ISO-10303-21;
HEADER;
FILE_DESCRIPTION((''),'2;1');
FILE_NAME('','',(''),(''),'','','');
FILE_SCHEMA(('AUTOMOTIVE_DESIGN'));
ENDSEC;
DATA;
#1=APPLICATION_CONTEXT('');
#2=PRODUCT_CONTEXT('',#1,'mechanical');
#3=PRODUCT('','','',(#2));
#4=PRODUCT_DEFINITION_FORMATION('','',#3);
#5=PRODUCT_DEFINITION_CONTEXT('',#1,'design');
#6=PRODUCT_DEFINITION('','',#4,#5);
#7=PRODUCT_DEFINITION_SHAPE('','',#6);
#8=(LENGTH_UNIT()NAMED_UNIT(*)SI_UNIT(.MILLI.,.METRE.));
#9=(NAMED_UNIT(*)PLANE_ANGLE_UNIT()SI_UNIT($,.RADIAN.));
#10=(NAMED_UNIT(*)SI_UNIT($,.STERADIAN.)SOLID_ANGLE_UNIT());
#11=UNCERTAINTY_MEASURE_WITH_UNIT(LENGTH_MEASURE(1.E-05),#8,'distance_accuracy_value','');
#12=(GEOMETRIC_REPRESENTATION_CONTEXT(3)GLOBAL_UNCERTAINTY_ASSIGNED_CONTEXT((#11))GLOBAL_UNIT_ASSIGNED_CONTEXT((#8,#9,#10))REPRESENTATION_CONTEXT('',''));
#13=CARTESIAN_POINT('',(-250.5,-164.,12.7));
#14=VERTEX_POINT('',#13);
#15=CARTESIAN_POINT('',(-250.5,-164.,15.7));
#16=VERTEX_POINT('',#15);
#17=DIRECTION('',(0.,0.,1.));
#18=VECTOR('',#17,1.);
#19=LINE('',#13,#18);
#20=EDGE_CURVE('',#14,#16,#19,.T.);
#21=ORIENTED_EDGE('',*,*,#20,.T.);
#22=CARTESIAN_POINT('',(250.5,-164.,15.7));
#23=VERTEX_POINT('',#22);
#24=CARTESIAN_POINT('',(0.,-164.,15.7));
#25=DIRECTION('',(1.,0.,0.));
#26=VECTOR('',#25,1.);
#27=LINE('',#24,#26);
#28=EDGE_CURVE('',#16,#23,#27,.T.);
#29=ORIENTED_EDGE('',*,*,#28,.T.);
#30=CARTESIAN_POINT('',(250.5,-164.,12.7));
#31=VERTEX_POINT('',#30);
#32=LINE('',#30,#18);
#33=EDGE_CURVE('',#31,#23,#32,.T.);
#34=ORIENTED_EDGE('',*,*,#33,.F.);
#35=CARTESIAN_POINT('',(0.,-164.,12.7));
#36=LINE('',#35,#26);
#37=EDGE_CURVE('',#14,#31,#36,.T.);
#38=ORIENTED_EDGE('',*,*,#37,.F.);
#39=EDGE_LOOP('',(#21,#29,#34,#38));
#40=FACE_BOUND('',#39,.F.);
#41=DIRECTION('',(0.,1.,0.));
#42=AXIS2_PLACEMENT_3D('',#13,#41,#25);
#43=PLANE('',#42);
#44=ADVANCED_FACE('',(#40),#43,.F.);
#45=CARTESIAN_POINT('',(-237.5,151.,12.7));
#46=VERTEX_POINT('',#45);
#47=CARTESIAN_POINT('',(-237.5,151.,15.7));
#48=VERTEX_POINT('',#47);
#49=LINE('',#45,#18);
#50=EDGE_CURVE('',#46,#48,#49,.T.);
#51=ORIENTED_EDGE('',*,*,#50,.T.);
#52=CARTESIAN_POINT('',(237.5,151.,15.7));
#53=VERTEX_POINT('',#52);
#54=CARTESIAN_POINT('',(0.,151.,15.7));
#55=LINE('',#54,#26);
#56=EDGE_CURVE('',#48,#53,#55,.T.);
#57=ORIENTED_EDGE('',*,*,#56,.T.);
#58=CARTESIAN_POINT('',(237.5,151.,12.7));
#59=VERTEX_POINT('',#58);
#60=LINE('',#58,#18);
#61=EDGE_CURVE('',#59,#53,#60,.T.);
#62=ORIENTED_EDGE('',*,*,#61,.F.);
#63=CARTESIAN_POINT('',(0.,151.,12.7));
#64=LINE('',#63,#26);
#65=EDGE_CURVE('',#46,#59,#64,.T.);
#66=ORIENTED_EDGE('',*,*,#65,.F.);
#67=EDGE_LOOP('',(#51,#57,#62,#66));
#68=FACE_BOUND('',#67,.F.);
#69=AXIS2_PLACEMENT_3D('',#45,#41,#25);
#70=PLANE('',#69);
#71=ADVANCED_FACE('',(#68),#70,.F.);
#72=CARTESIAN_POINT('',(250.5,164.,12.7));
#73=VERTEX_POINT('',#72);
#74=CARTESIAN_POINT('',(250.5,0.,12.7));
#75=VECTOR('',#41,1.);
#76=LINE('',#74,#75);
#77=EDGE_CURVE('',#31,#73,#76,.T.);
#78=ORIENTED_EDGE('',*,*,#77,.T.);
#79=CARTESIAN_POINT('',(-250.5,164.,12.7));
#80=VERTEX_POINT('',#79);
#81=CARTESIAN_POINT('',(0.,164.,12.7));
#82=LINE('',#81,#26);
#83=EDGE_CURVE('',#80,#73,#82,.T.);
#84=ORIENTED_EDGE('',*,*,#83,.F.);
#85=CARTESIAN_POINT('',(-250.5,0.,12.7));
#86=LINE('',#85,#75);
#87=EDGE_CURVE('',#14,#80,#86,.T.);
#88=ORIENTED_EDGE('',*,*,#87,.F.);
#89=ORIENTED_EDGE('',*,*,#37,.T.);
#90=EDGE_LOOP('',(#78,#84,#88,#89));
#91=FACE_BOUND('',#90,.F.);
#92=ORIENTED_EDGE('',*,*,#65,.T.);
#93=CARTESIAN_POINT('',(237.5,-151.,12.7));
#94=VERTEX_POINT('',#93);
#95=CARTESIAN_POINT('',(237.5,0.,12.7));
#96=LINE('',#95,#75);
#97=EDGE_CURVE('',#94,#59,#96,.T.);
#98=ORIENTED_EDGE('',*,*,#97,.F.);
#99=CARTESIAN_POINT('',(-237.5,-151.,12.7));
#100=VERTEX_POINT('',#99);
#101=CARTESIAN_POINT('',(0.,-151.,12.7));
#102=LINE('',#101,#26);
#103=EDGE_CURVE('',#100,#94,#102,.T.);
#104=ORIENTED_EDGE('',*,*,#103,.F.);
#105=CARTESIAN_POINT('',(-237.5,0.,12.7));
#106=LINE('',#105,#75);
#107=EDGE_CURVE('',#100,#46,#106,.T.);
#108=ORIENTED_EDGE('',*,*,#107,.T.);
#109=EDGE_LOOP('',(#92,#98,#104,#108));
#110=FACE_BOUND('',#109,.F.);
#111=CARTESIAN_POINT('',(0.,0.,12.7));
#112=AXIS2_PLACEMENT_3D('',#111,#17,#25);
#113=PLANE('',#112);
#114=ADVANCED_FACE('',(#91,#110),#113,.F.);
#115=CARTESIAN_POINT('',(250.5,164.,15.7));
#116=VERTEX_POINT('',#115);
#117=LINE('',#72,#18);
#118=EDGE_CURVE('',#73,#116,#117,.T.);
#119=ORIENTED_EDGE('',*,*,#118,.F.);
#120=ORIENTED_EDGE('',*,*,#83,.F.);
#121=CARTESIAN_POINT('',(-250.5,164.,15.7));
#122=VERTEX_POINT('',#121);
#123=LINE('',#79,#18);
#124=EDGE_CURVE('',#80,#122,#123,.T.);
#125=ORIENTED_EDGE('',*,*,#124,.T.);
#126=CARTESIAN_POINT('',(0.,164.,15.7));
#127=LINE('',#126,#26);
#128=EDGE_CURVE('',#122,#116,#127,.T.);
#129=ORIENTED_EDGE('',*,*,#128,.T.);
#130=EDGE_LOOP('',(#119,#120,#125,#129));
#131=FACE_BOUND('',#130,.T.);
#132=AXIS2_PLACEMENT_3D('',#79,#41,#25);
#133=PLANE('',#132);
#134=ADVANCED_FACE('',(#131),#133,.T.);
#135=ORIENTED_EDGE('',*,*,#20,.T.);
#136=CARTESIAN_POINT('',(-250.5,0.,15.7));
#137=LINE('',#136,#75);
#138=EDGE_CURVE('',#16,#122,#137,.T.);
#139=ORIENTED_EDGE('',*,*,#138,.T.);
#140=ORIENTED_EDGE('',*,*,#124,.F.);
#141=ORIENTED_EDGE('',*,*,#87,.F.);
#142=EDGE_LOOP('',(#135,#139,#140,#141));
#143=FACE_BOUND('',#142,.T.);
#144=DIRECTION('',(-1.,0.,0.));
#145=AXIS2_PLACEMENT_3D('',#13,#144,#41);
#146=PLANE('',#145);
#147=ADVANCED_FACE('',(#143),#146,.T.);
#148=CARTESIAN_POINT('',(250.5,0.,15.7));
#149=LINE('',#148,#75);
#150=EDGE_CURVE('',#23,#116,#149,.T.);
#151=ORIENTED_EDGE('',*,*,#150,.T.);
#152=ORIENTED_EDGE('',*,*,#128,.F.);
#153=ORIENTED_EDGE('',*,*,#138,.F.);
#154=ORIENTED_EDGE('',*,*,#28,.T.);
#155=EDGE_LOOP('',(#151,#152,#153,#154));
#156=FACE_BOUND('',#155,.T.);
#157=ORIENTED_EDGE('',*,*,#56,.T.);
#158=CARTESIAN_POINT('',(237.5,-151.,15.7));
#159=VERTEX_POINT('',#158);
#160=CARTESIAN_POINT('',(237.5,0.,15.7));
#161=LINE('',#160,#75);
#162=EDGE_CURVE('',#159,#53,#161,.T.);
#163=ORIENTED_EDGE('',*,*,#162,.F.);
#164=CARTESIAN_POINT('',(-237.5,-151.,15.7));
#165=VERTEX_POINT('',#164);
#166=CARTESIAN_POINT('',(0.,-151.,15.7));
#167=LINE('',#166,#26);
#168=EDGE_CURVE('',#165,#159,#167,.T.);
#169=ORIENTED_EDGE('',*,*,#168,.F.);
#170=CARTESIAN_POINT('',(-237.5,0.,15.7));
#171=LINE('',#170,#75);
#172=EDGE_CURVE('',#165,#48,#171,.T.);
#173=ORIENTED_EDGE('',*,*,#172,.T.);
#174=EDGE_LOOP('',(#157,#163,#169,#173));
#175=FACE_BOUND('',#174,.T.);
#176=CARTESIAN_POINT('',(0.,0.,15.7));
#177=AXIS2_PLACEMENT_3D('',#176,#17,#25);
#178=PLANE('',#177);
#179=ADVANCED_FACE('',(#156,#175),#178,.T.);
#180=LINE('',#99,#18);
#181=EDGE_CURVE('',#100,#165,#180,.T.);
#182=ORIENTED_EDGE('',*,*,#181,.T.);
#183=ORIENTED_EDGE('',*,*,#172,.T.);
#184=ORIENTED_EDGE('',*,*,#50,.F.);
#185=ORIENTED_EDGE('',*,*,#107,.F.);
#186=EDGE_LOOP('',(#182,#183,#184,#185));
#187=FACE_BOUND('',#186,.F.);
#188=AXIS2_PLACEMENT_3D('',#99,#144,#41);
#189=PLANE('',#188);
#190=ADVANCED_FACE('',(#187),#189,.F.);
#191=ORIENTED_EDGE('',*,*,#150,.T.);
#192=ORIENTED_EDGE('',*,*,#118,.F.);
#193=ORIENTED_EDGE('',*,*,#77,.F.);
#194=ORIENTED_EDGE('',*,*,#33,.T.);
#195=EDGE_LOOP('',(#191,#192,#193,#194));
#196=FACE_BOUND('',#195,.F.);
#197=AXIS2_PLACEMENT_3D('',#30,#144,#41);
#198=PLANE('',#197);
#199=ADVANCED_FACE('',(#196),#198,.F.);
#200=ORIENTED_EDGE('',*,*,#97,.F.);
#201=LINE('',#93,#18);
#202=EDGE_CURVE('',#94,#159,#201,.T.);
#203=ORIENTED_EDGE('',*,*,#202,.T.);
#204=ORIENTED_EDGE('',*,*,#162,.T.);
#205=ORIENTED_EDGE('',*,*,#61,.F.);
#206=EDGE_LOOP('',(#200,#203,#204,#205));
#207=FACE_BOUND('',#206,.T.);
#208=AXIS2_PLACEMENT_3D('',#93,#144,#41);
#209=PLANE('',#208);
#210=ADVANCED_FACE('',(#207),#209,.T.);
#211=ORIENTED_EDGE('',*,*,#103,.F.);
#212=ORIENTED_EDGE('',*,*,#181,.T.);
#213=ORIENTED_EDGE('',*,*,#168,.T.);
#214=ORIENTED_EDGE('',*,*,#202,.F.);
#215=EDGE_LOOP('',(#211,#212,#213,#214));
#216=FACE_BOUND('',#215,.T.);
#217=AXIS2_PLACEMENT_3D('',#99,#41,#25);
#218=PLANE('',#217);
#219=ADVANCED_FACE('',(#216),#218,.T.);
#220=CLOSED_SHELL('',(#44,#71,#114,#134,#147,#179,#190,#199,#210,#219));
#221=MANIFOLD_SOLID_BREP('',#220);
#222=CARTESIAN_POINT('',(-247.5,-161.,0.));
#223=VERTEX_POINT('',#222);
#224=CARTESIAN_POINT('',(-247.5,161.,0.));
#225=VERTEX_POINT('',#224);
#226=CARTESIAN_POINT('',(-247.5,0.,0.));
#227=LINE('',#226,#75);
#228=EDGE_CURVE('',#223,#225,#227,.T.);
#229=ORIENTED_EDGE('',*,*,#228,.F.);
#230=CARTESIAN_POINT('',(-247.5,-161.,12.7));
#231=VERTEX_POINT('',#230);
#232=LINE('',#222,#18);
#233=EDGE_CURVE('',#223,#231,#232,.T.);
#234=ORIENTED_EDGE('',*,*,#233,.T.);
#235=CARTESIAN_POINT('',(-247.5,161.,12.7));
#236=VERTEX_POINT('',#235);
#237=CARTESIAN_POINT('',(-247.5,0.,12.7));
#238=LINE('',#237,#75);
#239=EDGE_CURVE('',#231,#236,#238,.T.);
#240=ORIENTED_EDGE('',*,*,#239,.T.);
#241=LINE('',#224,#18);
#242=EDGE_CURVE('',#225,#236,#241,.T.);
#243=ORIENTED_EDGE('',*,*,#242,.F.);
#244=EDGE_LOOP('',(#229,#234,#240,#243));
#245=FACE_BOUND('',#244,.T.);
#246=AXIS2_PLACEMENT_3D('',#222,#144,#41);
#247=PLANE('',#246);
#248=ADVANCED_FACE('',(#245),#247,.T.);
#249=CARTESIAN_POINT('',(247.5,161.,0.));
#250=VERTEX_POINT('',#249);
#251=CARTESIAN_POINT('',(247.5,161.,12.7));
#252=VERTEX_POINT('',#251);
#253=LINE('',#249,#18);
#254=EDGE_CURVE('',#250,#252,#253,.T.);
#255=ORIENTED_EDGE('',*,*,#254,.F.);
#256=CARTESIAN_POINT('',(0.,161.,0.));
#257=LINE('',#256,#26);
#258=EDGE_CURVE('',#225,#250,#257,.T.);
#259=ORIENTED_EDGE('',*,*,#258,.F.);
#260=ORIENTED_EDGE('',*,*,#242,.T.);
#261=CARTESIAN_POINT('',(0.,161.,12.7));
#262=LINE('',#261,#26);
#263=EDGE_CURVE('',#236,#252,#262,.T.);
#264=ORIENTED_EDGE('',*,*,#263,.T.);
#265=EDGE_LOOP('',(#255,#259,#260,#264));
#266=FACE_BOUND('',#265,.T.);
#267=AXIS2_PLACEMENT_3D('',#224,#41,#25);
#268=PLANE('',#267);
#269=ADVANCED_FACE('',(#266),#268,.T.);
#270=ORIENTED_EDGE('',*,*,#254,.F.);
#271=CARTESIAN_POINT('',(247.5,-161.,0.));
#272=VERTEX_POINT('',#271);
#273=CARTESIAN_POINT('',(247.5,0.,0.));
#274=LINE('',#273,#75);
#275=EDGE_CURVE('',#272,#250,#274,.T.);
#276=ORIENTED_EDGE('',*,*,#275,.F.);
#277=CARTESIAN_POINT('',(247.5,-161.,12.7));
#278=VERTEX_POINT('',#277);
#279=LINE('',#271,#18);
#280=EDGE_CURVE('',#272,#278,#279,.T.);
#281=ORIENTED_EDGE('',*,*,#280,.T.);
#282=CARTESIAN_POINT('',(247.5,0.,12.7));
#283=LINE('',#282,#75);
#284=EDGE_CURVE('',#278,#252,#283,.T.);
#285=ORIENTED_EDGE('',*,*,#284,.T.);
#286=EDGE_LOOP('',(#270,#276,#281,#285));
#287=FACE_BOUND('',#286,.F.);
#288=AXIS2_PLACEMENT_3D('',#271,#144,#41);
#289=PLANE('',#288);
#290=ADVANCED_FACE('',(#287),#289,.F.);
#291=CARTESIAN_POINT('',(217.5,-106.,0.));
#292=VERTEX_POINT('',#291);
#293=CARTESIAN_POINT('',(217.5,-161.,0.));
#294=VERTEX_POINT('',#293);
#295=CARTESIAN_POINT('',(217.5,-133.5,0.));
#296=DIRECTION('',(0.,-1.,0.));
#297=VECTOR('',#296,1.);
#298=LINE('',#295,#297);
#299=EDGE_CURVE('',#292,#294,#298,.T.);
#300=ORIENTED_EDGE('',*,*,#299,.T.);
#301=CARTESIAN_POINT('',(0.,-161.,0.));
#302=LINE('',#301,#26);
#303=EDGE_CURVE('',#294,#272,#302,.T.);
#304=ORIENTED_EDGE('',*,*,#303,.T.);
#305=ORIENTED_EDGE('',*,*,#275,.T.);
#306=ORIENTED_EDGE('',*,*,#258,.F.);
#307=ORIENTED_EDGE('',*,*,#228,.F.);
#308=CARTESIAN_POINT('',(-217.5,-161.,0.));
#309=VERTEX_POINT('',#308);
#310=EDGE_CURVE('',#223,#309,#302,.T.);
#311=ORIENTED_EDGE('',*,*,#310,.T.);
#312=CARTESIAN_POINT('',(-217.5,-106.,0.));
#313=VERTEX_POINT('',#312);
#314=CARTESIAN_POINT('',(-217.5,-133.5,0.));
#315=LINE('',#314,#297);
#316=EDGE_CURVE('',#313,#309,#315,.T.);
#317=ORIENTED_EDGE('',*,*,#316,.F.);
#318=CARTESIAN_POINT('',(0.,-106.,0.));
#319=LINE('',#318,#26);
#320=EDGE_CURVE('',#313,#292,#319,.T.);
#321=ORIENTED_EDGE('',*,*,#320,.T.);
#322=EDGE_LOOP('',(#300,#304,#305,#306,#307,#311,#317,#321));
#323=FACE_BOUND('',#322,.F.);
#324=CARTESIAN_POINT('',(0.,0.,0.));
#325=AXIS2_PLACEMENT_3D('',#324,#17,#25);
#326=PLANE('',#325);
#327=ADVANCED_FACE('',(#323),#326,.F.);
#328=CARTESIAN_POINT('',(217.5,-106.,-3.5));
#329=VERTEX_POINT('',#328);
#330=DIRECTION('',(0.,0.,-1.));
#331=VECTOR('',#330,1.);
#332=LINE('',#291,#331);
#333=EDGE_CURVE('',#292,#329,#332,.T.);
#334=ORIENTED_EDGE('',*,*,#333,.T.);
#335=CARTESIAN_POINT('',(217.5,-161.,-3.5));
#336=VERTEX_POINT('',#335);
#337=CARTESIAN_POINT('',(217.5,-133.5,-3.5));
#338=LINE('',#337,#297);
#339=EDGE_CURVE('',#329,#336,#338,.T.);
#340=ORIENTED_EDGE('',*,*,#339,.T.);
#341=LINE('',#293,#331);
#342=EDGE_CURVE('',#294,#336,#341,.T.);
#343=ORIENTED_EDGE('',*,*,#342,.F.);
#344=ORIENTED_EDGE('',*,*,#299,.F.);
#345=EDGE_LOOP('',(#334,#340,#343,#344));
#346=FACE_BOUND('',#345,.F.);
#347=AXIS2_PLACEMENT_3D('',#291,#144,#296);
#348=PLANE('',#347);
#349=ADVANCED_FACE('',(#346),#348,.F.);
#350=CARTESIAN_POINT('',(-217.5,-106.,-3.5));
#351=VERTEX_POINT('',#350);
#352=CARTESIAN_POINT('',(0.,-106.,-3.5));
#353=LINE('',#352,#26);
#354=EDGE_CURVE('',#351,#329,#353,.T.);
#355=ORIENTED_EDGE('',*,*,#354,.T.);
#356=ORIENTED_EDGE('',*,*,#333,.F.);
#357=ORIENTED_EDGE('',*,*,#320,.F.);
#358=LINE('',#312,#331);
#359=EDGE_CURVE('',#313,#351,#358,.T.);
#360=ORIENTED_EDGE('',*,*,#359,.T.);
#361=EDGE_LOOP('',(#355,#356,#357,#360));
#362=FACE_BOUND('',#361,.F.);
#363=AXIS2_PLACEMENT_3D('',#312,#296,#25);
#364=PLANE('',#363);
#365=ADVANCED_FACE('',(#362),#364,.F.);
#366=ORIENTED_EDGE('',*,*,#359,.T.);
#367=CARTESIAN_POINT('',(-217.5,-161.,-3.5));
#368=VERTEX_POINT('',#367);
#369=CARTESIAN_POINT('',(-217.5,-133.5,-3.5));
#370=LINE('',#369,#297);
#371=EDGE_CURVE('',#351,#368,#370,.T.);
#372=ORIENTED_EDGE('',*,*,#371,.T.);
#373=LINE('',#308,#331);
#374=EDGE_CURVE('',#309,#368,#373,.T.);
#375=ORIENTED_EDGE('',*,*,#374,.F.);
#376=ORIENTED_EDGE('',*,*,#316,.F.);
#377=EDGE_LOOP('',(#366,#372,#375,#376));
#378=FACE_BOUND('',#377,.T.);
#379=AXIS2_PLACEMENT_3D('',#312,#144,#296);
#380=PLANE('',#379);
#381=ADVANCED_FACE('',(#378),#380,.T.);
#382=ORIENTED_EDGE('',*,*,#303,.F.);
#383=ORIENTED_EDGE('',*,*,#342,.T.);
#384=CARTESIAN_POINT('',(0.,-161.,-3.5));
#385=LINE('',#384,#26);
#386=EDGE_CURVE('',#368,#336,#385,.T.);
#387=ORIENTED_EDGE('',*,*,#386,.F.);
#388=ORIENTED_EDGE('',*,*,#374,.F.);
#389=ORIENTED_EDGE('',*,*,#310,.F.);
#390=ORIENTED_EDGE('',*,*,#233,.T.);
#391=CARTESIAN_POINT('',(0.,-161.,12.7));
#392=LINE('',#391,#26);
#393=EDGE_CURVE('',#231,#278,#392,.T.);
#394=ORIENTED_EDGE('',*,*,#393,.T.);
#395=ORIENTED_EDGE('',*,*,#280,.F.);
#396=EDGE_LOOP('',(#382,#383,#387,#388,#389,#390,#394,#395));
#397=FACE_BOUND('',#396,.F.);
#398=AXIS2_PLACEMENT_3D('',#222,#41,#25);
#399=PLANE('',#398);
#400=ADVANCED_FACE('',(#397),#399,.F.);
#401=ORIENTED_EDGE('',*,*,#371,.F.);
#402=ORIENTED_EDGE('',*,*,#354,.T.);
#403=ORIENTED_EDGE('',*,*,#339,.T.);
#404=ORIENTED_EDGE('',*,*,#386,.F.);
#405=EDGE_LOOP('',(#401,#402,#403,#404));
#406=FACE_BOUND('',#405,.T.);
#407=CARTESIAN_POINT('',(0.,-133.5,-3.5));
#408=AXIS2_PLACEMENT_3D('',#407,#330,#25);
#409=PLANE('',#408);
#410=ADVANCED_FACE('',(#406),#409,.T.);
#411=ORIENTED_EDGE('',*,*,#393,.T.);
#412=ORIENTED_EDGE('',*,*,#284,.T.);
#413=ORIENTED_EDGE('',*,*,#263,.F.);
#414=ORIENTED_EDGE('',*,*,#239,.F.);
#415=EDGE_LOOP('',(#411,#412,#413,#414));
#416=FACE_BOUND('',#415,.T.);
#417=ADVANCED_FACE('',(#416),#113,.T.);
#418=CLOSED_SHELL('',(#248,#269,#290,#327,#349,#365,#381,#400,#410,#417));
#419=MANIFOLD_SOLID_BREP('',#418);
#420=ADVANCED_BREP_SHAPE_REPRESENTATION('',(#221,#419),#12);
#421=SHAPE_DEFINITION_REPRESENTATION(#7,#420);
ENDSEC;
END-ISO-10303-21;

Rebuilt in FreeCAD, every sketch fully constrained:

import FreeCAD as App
import Part
import Sketcher
from FreeCAD import Vector
Q = App.Units.Quantity


def add_polygon(sketch, points):
    """Adds a closed chain of lines whose ends are joined by coincident constraints."""
    first, n = sketch.GeometryCount, len(points)
    for a, b in zip(points, points[1:] + points[:1]):
        sketch.addGeometry(Part.LineSegment(App.Vector(*a, 0), App.Vector(*b, 0)), False)
    for i in range(n):
        sketch.addConstraint(Sketcher.Constraint("Coincident", first + i, 2, first + (i + 1) % n, 1))

doc = App.newDocument("Part")
body = doc.addObject("PartDesign::Body", "Body")

# Sketch on XY plane
sketch1 = body.newObject("Sketcher::SketchObject", "Sketch")
sketch1.AttachmentSupport = (doc.getObject("XY_Plane"), [""])
sketch1.MapMode = "FlatFace"
add_polygon(sketch1, [(-248, 161), (-248, -161), (248, -161), (248, 161)])  # lines 0-3
sketch1.addConstraint([
    Sketcher.Constraint("Vertical", 0),
    Sketcher.Constraint("Horizontal", 1),
    Sketcher.Constraint("Vertical", 2),
    Sketcher.Constraint("Horizontal", 3),
    Sketcher.Constraint("Symmetric", 0, 2, 2, 2, -1, 1),
    Sketcher.Constraint("DistanceX", 1, 1, 1, 2, Q("495 mm")),
    Sketcher.Constraint("DistanceY", 0, 2, 0, 1, Q("322 mm")),
])
pad1 = body.newObject("PartDesign::Pad", "Pad")
pad1.Profile = sketch1
pad1.Length = 12.7

# Sketch on XY plane
sketch2 = body.newObject("Sketcher::SketchObject", "Sketch001")
sketch2.AttachmentSupport = (doc.getObject("XY_Plane"), [""])
sketch2.MapMode = "FlatFace"
add_polygon(sketch2, [(-218, -161), (-218, -106), (218, -106), (218, -161)])  # lines 0-3
sketch2.addConstraint([
    Sketcher.Constraint("Vertical", 0),
    Sketcher.Constraint("Horizontal", 1),
    Sketcher.Constraint("Vertical", 2),
    Sketcher.Constraint("Horizontal", 3),
    Sketcher.Constraint("DistanceX", 1, 1, 1, 2, Q("435 mm")),
    Sketcher.Constraint("DistanceY", 0, 1, 0, 2, Q("55 mm")),
    Sketcher.Constraint("DistanceY", 0, 2, -1, 1, Q("106 mm")),
    Sketcher.Constraint("DistanceX", 0, 2, -1, 1, Q("217.5 mm")),
])
pad2 = body.newObject("PartDesign::Pad", "Pad001")
pad2.Profile = sketch2
pad2.Length = 3.5
pad2.Reversed = True
body2 = doc.addObject("PartDesign::Body", "Body001")

# Sketch on XY plane
sketch3 = body2.newObject("Sketcher::SketchObject", "Sketch002")
sketch3.AttachmentSupport = (doc.getObject("XY_Plane001"), [""])
sketch3.MapMode = "FlatFace"
sketch3.AttachmentOffset = App.Placement(Vector(0, 0, 12.7), App.Rotation())
add_polygon(sketch3, [(-250, 164), (-250, -164), (250, -164), (250, 164)])  # lines 0-3
add_polygon(sketch3, [(238, -151), (-238, -151), (-238, 151), (238, 151)])  # lines 4-7
sketch3.addConstraint([
    Sketcher.Constraint("Vertical", 0),
    Sketcher.Constraint("Horizontal", 1),
    Sketcher.Constraint("Vertical", 2),
    Sketcher.Constraint("Horizontal", 3),
    Sketcher.Constraint("Horizontal", 4),
    Sketcher.Constraint("Vertical", 5),
    Sketcher.Constraint("Horizontal", 6),
    Sketcher.Constraint("Vertical", 7),
    Sketcher.Constraint("Symmetric", 0, 2, 2, 2, -1, 1),
    Sketcher.Constraint("Symmetric", 4, 2, 6, 2, -1, 1),
    Sketcher.Constraint("DistanceX", 1, 1, 1, 2, Q("501 mm")),
    Sketcher.Constraint("DistanceX", 4, 2, 4, 1, Q("475 mm")),
    Sketcher.Constraint("DistanceY", 0, 2, 0, 1, Q("328 mm")),
    Sketcher.Constraint("DistanceY", 5, 1, 5, 2, Q("302 mm")),
])
pad3 = body2.newObject("PartDesign::Pad", "Pad002")
pad3.Profile = sketch3
pad3.Length = 3

doc.recompute()
